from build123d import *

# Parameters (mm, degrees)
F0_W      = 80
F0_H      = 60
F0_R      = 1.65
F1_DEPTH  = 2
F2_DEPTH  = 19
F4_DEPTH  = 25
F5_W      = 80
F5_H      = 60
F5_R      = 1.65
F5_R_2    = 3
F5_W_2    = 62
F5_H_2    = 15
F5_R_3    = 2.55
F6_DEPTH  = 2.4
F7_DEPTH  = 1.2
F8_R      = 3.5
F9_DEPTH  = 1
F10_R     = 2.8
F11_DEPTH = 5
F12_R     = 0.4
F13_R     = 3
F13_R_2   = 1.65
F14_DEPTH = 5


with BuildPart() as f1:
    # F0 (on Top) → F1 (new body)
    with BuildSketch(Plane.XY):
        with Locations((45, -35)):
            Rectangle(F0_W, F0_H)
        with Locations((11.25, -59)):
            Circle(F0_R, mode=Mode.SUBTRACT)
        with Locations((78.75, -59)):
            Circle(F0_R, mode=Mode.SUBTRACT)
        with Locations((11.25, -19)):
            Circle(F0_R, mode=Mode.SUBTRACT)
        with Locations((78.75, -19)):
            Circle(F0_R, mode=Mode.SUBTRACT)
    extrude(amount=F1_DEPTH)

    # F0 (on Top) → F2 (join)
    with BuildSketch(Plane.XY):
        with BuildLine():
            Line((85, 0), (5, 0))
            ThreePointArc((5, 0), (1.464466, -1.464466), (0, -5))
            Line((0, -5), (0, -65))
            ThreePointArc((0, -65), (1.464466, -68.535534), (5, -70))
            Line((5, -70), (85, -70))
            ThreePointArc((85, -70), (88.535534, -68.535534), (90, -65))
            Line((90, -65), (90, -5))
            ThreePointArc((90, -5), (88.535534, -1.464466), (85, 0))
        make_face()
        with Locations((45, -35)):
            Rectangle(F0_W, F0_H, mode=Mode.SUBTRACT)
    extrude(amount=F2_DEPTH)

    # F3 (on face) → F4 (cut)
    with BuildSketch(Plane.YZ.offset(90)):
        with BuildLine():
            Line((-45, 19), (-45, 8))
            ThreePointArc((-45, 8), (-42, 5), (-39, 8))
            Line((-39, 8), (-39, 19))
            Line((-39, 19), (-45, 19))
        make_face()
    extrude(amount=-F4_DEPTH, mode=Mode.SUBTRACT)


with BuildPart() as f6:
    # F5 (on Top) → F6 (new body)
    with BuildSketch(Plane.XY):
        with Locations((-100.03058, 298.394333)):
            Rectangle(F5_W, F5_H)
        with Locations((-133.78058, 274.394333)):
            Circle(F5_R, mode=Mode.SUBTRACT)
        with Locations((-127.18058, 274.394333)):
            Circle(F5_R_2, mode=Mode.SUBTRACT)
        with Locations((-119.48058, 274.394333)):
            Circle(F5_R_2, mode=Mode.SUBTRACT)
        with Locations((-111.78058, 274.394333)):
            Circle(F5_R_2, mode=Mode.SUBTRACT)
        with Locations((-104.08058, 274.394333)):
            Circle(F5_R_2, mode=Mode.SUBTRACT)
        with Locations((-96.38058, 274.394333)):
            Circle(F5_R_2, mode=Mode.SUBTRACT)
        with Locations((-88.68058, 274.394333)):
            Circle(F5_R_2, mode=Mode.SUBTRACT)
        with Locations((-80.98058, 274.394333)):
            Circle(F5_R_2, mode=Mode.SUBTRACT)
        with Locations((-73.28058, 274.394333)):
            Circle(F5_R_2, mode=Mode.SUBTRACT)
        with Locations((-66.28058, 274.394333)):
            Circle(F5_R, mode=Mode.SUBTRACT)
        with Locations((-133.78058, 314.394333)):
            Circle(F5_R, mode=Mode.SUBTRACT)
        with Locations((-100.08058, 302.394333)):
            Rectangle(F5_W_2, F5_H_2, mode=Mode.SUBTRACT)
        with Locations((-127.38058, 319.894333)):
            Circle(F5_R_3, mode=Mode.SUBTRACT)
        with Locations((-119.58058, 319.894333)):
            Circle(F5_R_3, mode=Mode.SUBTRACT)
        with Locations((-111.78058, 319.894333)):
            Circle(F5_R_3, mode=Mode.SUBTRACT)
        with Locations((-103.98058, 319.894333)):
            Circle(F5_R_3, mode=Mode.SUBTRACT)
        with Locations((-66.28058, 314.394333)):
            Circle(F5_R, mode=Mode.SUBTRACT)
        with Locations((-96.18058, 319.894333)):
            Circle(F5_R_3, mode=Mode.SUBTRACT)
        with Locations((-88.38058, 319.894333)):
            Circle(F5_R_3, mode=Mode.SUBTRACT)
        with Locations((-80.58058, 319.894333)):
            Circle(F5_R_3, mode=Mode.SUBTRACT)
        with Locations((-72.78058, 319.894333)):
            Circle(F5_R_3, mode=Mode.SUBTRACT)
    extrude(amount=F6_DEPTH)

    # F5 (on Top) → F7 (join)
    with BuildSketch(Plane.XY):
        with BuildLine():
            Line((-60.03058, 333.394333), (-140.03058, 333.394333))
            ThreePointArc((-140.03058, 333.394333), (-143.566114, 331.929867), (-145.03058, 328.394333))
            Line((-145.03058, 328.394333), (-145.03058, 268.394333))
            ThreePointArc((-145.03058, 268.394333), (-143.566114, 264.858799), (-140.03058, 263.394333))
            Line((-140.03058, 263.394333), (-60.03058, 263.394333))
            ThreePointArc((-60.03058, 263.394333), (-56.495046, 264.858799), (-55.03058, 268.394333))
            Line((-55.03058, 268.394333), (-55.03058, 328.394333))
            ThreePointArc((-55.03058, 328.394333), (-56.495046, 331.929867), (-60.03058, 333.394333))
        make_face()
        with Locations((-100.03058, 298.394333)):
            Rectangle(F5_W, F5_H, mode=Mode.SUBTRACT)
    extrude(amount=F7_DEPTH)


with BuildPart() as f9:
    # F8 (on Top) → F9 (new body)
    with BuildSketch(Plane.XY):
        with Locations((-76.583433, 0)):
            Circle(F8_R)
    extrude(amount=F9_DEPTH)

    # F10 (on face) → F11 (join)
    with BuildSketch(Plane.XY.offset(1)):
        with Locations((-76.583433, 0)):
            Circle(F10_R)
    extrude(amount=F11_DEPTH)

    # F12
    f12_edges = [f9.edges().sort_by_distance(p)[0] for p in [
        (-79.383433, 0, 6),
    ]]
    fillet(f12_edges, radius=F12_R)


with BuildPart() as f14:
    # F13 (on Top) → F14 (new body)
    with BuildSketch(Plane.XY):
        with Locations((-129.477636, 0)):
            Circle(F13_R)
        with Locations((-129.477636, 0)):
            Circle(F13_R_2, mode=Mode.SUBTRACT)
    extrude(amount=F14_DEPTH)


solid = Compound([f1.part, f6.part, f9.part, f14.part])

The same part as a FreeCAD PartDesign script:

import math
import FreeCAD as App
import Part
import Sketcher
from FreeCAD import Vector
Q = App.Units.Quantity


def edges_at(feature, points):
    """Names of the edges that pass closest to the given points."""
    edges = feature.Shape.Edges
    near = lambda p: min(range(len(edges)), key=lambda i: edges[i].distToShape(Part.Vertex(*p))[0])
    return sorted({f"Edge{near(p) + 1}" for p in points})


def add_polygon(sketch, points):
    """Adds a closed chain of lines whose ends are joined by coincident constraints."""
    first, n = sketch.GeometryCount, len(points)
    for a, b in zip(points, points[1:] + points[:1]):
        sketch.addGeometry(Part.LineSegment(App.Vector(*a, 0), App.Vector(*b, 0)), False)
    for i in range(n):
        sketch.addConstraint(Sketcher.Constraint("Coincident", first + i, 2, first + (i + 1) % n, 1))

doc = App.newDocument("Part")
body = doc.addObject("PartDesign::Body", "Body")

# Sketch on XY plane
sketch1 = body.newObject("Sketcher::SketchObject", "Sketch")
sketch1.AttachmentSupport = (doc.getObject("XY_Plane"), [""])
sketch1.MapMode = "FlatFace"
add_polygon(sketch1, [(5, -5), (5, -65), (85, -65), (85, -5)])  # lines 0-3
sketch1.addGeometry(Part.Circle(Vector(11.25, -59, 0), Vector(0, 0, 1), 1.65), False)  # 4
sketch1.addGeometry(Part.Circle(Vector(78.75, -59, 0), Vector(0, 0, 1), 1.65), False)  # 5
sketch1.addGeometry(Part.Circle(Vector(11.25, -19, 0), Vector(0, 0, 1), 1.65), False)  # 6
sketch1.addGeometry(Part.Circle(Vector(78.75, -19, 0), Vector(0, 0, 1), 1.65), False)  # 7
sketch1.addConstraint(Sketcher.Constraint("Vertical", 0))
sketch1.addConstraint(Sketcher.Constraint("Horizontal", 1))
sketch1.addConstraint(Sketcher.Constraint("Vertical", 2))
sketch1.addConstraint(Sketcher.Constraint("Horizontal", 3))
sketch1.addConstraint(Sketcher.Constraint("Equal", 4, 5))
sketch1.addConstraint(Sketcher.Constraint("Equal", 5, 6))
sketch1.addConstraint(Sketcher.Constraint("Equal", 6, 7))
sketch1.addConstraint(Sketcher.Constraint("Horizontal", 4, 3, 5, 3))
sketch1.addConstraint(Sketcher.Constraint("Horizontal", 6, 3, 7, 3))
sketch1.addConstraint(Sketcher.Constraint("Vertical", 4, 3, 6, 3))
sketch1.addConstraint(Sketcher.Constraint("Vertical", 5, 3, 7, 3))
sketch1.addConstraint(Sketcher.Constraint("Diameter", 4, Q("3.3 mm")))
sketch1.addConstraint(Sketcher.Constraint("DistanceX", 1, 1, 1, 2, Q("80 mm")))
sketch1.addConstraint(Sketcher.Constraint("DistanceY", 0, 2, 0, 1, Q("60 mm")))
sketch1.addConstraint(Sketcher.Constraint("DistanceY", 4, 3, -1, 1, Q("59 mm")))
sketch1.addConstraint(Sketcher.Constraint("DistanceY", 6, 3, -1, 1, Q("19 mm")))
sketch1.addConstraint(Sketcher.Constraint("DistanceX", -1, 1, 0, 2, Q("5 mm")))
sketch1.addConstraint(Sketcher.Constraint("DistanceY", 0, 2, -1, 1, Q("65 mm")))
sketch1.addConstraint(Sketcher.Constraint("DistanceX", 4, 3, 5, 3, Q("67.5 mm")))
sketch1.addConstraint(Sketcher.Constraint("DistanceX", -1, 1, 4, 3, Q("11.25 mm")))
pad1 = body.newObject("PartDesign::Pad", "Pad")
pad1.Profile = sketch1
pad1.Length = 2

# Sketch on XY plane
sketch2 = body.newObject("Sketcher::SketchObject", "Sketch001")
sketch2.AttachmentSupport = (doc.getObject("XY_Plane"), [""])
sketch2.MapMode = "FlatFace"
sketch2.addGeometry(Part.LineSegment(Vector(85, 0, 0), Vector(5, 0, 0)), False)  # 0
sketch2.addGeometry(Part.ArcOfCircle(Part.Circle(Vector(5, -5, 0), Vector(0, 0, 1), 5), math.radians(89.999996), math.radians(180.000004)), False)  # 1
sketch2.addGeometry(Part.LineSegment(Vector(0, -5, 0), Vector(0, -65, 0)), False)  # 2
sketch2.addGeometry(Part.ArcOfCircle(Part.Circle(Vector(5, -65, 0), Vector(0, 0, 1), 5), math.radians(179.999996), math.radians(270.000004)), False)  # 3
sketch2.addGeometry(Part.LineSegment(Vector(5, -70, 0), Vector(85, -70, 0)), False)  # 4
sketch2.addGeometry(Part.ArcOfCircle(Part.Circle(Vector(85, -65, 0), Vector(0, 0, 1), 5), math.radians(-90.000004), math.radians(0.000004)), False)  # 5
sketch2.addGeometry(Part.LineSegment(Vector(90, -65, 0), Vector(90, -5, 0)), False)  # 6
sketch2.addGeometry(Part.ArcOfCircle(Part.Circle(Vector(85, -5, 0), Vector(0, 0, 1), 5), math.radians(-0.000004), math.radians(90.000004)), False)  # 7
add_polygon(sketch2, [(85, -65), (5, -65), (5, -5), (85, -5)])  # lines 8-11
sketch2.addConstraint(Sketcher.Constraint("Tangent", 0, 2, 1, 1))
sketch2.addConstraint(Sketcher.Constraint("Tangent", 1, 2, 2, 1))
sketch2.addConstraint(Sketcher.Constraint("Tangent", 2, 2, 3, 1))
sketch2.addConstraint(Sketcher.Constraint("Tangent", 3, 2, 4, 1))
sketch2.addConstraint(Sketcher.Constraint("Tangent", 4, 2, 5, 1))
sketch2.addConstraint(Sketcher.Constraint("Tangent", 5, 2, 6, 1))
sketch2.addConstraint(Sketcher.Constraint("Tangent", 6, 2, 7, 1))
sketch2.addConstraint(Sketcher.Constraint("Tangent", 7, 2, 0, 1))
sketch2.addConstraint(Sketcher.Constraint("Horizontal", 0))
sketch2.addConstraint(Sketcher.Constraint("Vertical", 2))
sketch2.addConstraint(Sketcher.Constraint("Horizontal", 4))
sketch2.addConstraint(Sketcher.Constraint("Vertical", 6))
sketch2.addConstraint(Sketcher.Constraint("Horizontal", 8))
sketch2.addConstraint(Sketcher.Constraint("Vertical", 9))
sketch2.addConstraint(Sketcher.Constraint("Horizontal", 10))
sketch2.addConstraint(Sketcher.Constraint("Vertical", 11))
sketch2.addConstraint(Sketcher.Constraint("Coincident", 8, 2, 3, 3))
sketch2.addConstraint(Sketcher.Constraint("Coincident", 9, 2, 1, 3))
sketch2.addConstraint(Sketcher.Constraint("Coincident", 10, 2, 7, 3))
sketch2.addConstraint(Sketcher.Constraint("Equal", 3, 5))
sketch2.addConstraint(Sketcher.Constraint("PointOnObject", 0, 2, -1))
sketch2.addConstraint(Sketcher.Constraint("PointOnObject", 1, 2, -2))
sketch2.addConstraint(Sketcher.Constraint("Radius", 1, Q("5 mm")))
sketch2.addConstraint(Sketcher.Constraint("DistanceX", 0, 2, 0, 1, Q("80 mm")))
sketch2.addConstraint(Sketcher.Constraint("DistanceY", 2, 2, 2, 1, Q("60 mm")))
pad2 = body.newObject("PartDesign::Pad", "Pad001")
pad2.Profile = sketch2
pad2.Length = 19

# Sketch on YZ plane
sketch3 = body.newObject("Sketcher::SketchObject", "Sketch002")
sketch3.AttachmentSupport = (doc.getObject("YZ_Plane"), [""])
sketch3.MapMode = "FlatFace"
sketch3.AttachmentOffset = App.Placement(Vector(0, 0, 90), App.Rotation())
sketch3.addGeometry(Part.LineSegment(Vector(-45, 19, 0), Vector(-45, 8, 0)), False)
sketch3.addGeometry(Part.ArcOfCircle(Part.Circle(Vector(-42, 8, 0), Vector(0, 0, 1), 3), math.radians(180), math.radians(360)), False)
sketch3.addGeometry(Part.LineSegment(Vector(-39, 8, 0), Vector(-39, 19, 0)), False)
sketch3.addGeometry(Part.LineSegment(Vector(-39, 19, 0), Vector(-45, 19, 0)), False)
sketch3.addConstraint(Sketcher.Constraint("Tangent", 0, 2, 1, 1))
sketch3.addConstraint(Sketcher.Constraint("Tangent", 1, 2, 2, 1))
sketch3.addConstraint(Sketcher.Constraint("Coincident", 2, 2, 3, 1))
sketch3.addConstraint(Sketcher.Constraint("Coincident", 3, 2, 0, 1))
sketch3.addConstraint(Sketcher.Constraint("Vertical", 0))
sketch3.addConstraint(Sketcher.Constraint("Vertical", 2))
sketch3.addConstraint(Sketcher.Constraint("Horizontal", 3))
sketch3.addConstraint(Sketcher.Constraint("Radius", 1, Q("3 mm")))
sketch3.addConstraint(Sketcher.Constraint("DistanceY", 0, 2, 0, 1, Q("11 mm")))
sketch3.addConstraint(Sketcher.Constraint("DistanceX", 1, 3, -1, 1, Q("42 mm")))
sketch3.addConstraint(Sketcher.Constraint("DistanceY", -1, 1, 1, 3, Q("8 mm")))
pocket1 = body.newObject("PartDesign::Pocket", "Pocket")
pocket1.Profile = sketch3
pocket1.Length = 25
body2 = doc.addObject("PartDesign::Body", "Body001")

# Sketch on XY plane
sketch4 = body2.newObject("Sketcher::SketchObject", "Sketch003")
sketch4.AttachmentSupport = (doc.getObject("XY_Plane001"), [""])
sketch4.MapMode = "FlatFace"
add_polygon(sketch4, [(-140.03058, 328.394333), (-140.03058, 268.394333), (-60.03058, 268.394333), (-60.03058, 328.394333)])  # lines 0-3
sketch4.addGeometry(Part.Circle(Vector(-133.78058, 274.394333, 0), Vector(0, 0, 1), 1.65), False)  # 4
sketch4.addGeometry(Part.Circle(Vector(-127.18058, 274.394333, 0), Vector(0, 0, 1), 3), False)  # 5
sketch4.addGeometry(Part.Circle(Vector(-119.48058, 274.394333, 0), Vector(0, 0, 1), 3), False)  # 6
sketch4.addGeometry(Part.Circle(Vector(-111.78058, 274.394333, 0), Vector(0, 0, 1), 3), False)  # 7
sketch4.addGeometry(Part.Circle(Vector(-104.08058, 274.394333, 0), Vector(0, 0, 1), 3), False)  # 8
sketch4.addGeometry(Part.Circle(Vector(-96.38058, 274.394333, 0), Vector(0, 0, 1), 3), False)  # 9
sketch4.addGeometry(Part.Circle(Vector(-88.68058, 274.394333, 0), Vector(0, 0, 1), 3), False)  # 10
sketch4.addGeometry(Part.Circle(Vector(-80.98058, 274.394333, 0), Vector(0, 0, 1), 3), False)  # 11
sketch4.addGeometry(Part.Circle(Vector(-73.28058, 274.394333, 0), Vector(0, 0, 1), 3), False)  # 12
sketch4.addGeometry(Part.Circle(Vector(-66.28058, 274.394333, 0), Vector(0, 0, 1), 1.65), False)  # 13
add_polygon(sketch4, [(-69.08058, 294.894333), (-131.08058, 294.894333), (-131.08058, 309.894333), (-69.08058, 309.894333)])  # lines 14-17
sketch4.addGeometry(Part.Circle(Vector(-133.78058, 314.394333, 0), Vector(0, 0, 1), 1.65), False)  # 18
sketch4.addGeometry(Part.Circle(Vector(-127.38058, 319.894333, 0), Vector(0, 0, 1), 2.55), False)  # 19
sketch4.addGeometry(Part.Circle(Vector(-119.58058, 319.894333, 0), Vector(0, 0, 1), 2.55), False)  # 20
sketch4.addGeometry(Part.Circle(Vector(-111.78058, 319.894333, 0), Vector(0, 0, 1), 2.55), False)  # 21
sketch4.addGeometry(Part.Circle(Vector(-103.98058, 319.894333, 0), Vector(0, 0, 1), 2.55), False)  # 22
sketch4.addGeometry(Part.Circle(Vector(-96.18058, 319.894333, 0), Vector(0, 0, 1), 2.55), False)  # 23
sketch4.addGeometry(Part.Circle(Vector(-88.38058, 319.894333, 0), Vector(0, 0, 1), 2.55), False)  # 24
sketch4.addGeometry(Part.Circle(Vector(-66.28058, 314.394333, 0), Vector(0, 0, 1), 1.65), False)  # 25
sketch4.addGeometry(Part.Circle(Vector(-80.58058, 319.894333, 0), Vector(0, 0, 1), 2.55), False)  # 26
sketch4.addGeometry(Part.Circle(Vector(-72.78058, 319.894333, 0), Vector(0, 0, 1), 2.55), False)  # 27
sketch4.addConstraint(Sketcher.Constraint("Vertical", 0))
sketch4.addConstraint(Sketcher.Constraint("Horizontal", 1))
sketch4.addConstraint(Sketcher.Constraint("Vertical", 2))
sketch4.addConstraint(Sketcher.Constraint("Horizontal", 3))
sketch4.addConstraint(Sketcher.Constraint("Horizontal", 14))
sketch4.addConstraint(Sketcher.Constraint("Vertical", 15))
sketch4.addConstraint(Sketcher.Constraint("Horizontal", 16))
sketch4.addConstraint(Sketcher.Constraint("Vertical", 17))
sketch4.addConstraint(Sketcher.Constraint("Equal", 5, 6))
sketch4.addConstraint(Sketcher.Constraint("Equal", 6, 7))
sketch4.addConstraint(Sketcher.Constraint("Equal", 7, 8))
sketch4.addConstraint(Sketcher.Constraint("Equal", 8, 9))
sketch4.addConstraint(Sketcher.Constraint("Equal", 9, 10))
sketch4.addConstraint(Sketcher.Constraint("Equal", 10, 11))
sketch4.addConstraint(Sketcher.Constraint("Equal", 11, 12))
sketch4.addConstraint(Sketcher.Constraint("Equal", 4, 13))
sketch4.addConstraint(Sketcher.Constraint("Equal", 13, 18))
sketch4.addConstraint(Sketcher.Constraint("Equal", 19, 20))
sketch4.addConstraint(Sketcher.Constraint("Equal", 20, 21))
sketch4.addConstraint(Sketcher.Constraint("Equal", 21, 22))
sketch4.addConstraint(Sketcher.Constraint("Equal", 22, 23))
sketch4.addConstraint(Sketcher.Constraint("Equal", 23, 24))
sketch4.addConstraint(Sketcher.Constraint("Equal", 18, 25))
sketch4.addConstraint(Sketcher.Constraint("Equal", 24, 26))
sketch4.addConstraint(Sketcher.Constraint("Equal", 26, 27))
sketch4.addConstraint(Sketcher.Constraint("Horizontal", 4, 3, 5, 3))
sketch4.addConstraint(Sketcher.Constraint("Horizontal", 5, 3, 6, 3))
sketch4.addConstraint(Sketcher.Constraint("Horizontal", 6, 3, 7, 3))
sketch4.addConstraint(Sketcher.Constraint("Horizontal", 7, 3, 8, 3))
sketch4.addConstraint(Sketcher.Constraint("Horizontal", 8, 3, 9, 3))
sketch4.addConstraint(Sketcher.Constraint("Horizontal", 9, 3, 10, 3))
sketch4.addConstraint(Sketcher.Constraint("Horizontal", 10, 3, 11, 3))
sketch4.addConstraint(Sketcher.Constraint("Horizontal", 11, 3, 12, 3))
sketch4.addConstraint(Sketcher.Constraint("Horizontal", 12, 3, 13, 3))
sketch4.addConstraint(Sketcher.Constraint("Horizontal", 19, 3, 20, 3))
sketch4.addConstraint(Sketcher.Constraint("Horizontal", 20, 3, 21, 3))
sketch4.addConstraint(Sketcher.Constraint("Horizontal", 21, 3, 22, 3))
sketch4.addConstraint(Sketcher.Constraint("Horizontal", 22, 3, 23, 3))
sketch4.addConstraint(Sketcher.Constraint("Horizontal", 23, 3, 24, 3))
sketch4.addConstraint(Sketcher.Constraint("Horizontal", 18, 3, 25, 3))
sketch4.addConstraint(Sketcher.Constraint("Horizontal", 24, 3, 26, 3))
sketch4.addConstraint(Sketcher.Constraint("Horizontal", 26, 3, 27, 3))
sketch4.addConstraint(Sketcher.Constraint("Vertical", 4, 3, 18, 3))
sketch4.addConstraint(Sketcher.Constraint("Vertical", 7, 3, 21, 3))
sketch4.addConstraint(Sketcher.Constraint("Vertical", 13, 3, 25, 3))
sketch4.addConstraint(Sketcher.Constraint("Diameter", 5, Q("6 mm")))
sketch4.addConstraint(Sketcher.Constraint("Diameter", 4, Q("3.3 mm")))
sketch4.addConstraint(Sketcher.Constraint("Diameter", 19, Q("5.1 mm")))
sketch4.addConstraint(Sketcher.Constraint("DistanceX", 1, 1, 1, 2, Q("80 mm")))
sketch4.addConstraint(Sketcher.Constraint("DistanceX", 14, 2, 14, 1, Q("62 mm")))
sketch4.addConstraint(Sketcher.Constraint("DistanceY", 0, 2, 0, 1, Q("60 mm")))
sketch4.addConstraint(Sketcher.Constraint("DistanceY", 15, 1, 15, 2, Q("15 mm")))
sketch4.addConstraint(Sketcher.Constraint("DistanceX", 4, 3, 7, 3, Q("22 mm")))
sketch4.addConstraint(Sketcher.Constraint("DistanceX", 12, 3, 13, 3, Q("7 mm")))
sketch4.addConstraint(Sketcher.Constraint("DistanceY", 4, 3, 18, 3, Q("40 mm")))
sketch4.addConstraint(Sketcher.Constraint("DistanceX", 19, 3, 24, 3, Q("39 mm")))
sketch4.addConstraint(Sketcher.Constraint("DistanceY", 0, 2, 4, 3, Q("6 mm")))
sketch4.addConstraint(Sketcher.Constraint("DistanceY", 14, 2, 19, 3, Q("25 mm")))
sketch4.addConstraint(Sketcher.Constraint("DistanceX", 4, 3, 5, 3, Q("6.6 mm")))
sketch4.addConstraint(Sketcher.Constraint("DistanceX", 5, 3, 6, 3, Q("7.7 mm")))
sketch4.addConstraint(Sketcher.Constraint("DistanceX", 7, 3, 8, 3, Q("7.7 mm")))
sketch4.addConstraint(Sketcher.Constraint("DistanceX", 8, 3, 9, 3, Q("7.7 mm")))
sketch4.addConstraint(Sketcher.Constraint("DistanceX", 9, 3, 10, 3, Q("7.7 mm")))
sketch4.addConstraint(Sketcher.Constraint("DistanceX", 10, 3, 11, 3, Q("7.7 mm")))
sketch4.addConstraint(Sketcher.Constraint("DistanceX", 11, 3, 12, 3, Q("7.7 mm")))
sketch4.addConstraint(Sketcher.Constraint("DistanceX", 18, 3, 19, 3, Q("6.4 mm")))
sketch4.addConstraint(Sketcher.Constraint("DistanceY", 18, 3, 19, 3, Q("5.5 mm")))
sketch4.addConstraint(Sketcher.Constraint("DistanceX", 19, 3, 20, 3, Q("7.8 mm")))
sketch4.addConstraint(Sketcher.Constraint("DistanceX", 21, 3, 22, 3, Q("7.8 mm")))
sketch4.addConstraint(Sketcher.Constraint("DistanceX", 22, 3, 23, 3, Q("7.8 mm")))
sketch4.addConstraint(Sketcher.Constraint("DistanceX", 24, 3, 26, 3, Q("7.8 mm")))
sketch4.addConstraint(Sketcher.Constraint("DistanceX", 26, 3, 27, 3, Q("7.8 mm")))
sketch4.addConstraint(Sketcher.Constraint("DistanceX", 18, 3, 14, 2, Q("2.7 mm")))
sketch4.addConstraint(Sketcher.Constraint("DistanceX", 0, 2, 4, 3, Q("6.25 mm")))
sketch4.addConstraint(Sketcher.Constraint("DistanceX", 4, 3, -1, 1, Q("133.78058 mm")))
sketch4.addConstraint(Sketcher.Constraint("DistanceY", -1, 1, 4, 3, Q("274.394333 mm")))
pad3 = body2.newObject("PartDesign::Pad", "Pad002")
pad3.Profile = sketch4
pad3.Length = 2.4

# Sketch on XY plane
sketch5 = body2.newObject("Sketcher::SketchObject", "Sketch004")
sketch5.AttachmentSupport = (doc.getObject("XY_Plane001"), [""])
sketch5.MapMode = "FlatFace"
sketch5.addGeometry(Part.LineSegment(Vector(-60.03058, 333.394333, 0), Vector(-140.03058, 333.394333, 0)), False)  # 0
sketch5.addGeometry(Part.ArcOfCircle(Part.Circle(Vector(-140.03058, 328.394333, 0), Vector(0, 0, 1), 5), math.radians(89.999996), math.radians(180.000004)), False)  # 1
sketch5.addGeometry(Part.LineSegment(Vector(-145.03058, 328.394333, 0), Vector(-145.03058, 268.394333, 0)), False)  # 2
sketch5.addGeometry(Part.ArcOfCircle(Part.Circle(Vector(-140.03058, 268.394333, 0), Vector(0, 0, 1), 5), math.radians(179.999996), math.radians(270.000004)), False)  # 3
sketch5.addGeometry(Part.LineSegment(Vector(-140.03058, 263.394333, 0), Vector(-60.03058, 263.394333, 0)), False)  # 4
sketch5.addGeometry(Part.ArcOfCircle(Part.Circle(Vector(-60.03058, 268.394333, 0), Vector(0, 0, 1), 5), math.radians(-90.000004), math.radians(0.000004)), False)  # 5
sketch5.addGeometry(Part.LineSegment(Vector(-55.03058, 268.394333, 0), Vector(-55.03058, 328.394333, 0)), False)  # 6
sketch5.addGeometry(Part.ArcOfCircle(Part.Circle(Vector(-60.03058, 328.394333, 0), Vector(0, 0, 1), 5), math.radians(-0.000004), math.radians(90.000004)), False)  # 7
add_polygon(sketch5, [(-60.03058, 268.394333), (-140.03058, 268.394333), (-140.03058, 328.394333), (-60.03058, 328.394333)])  # lines 8-11
sketch5.addConstraint(Sketcher.Constraint("Tangent", 0, 2, 1, 1))
sketch5.addConstraint(Sketcher.Constraint("Tangent", 1, 2, 2, 1))
sketch5.addConstraint(Sketcher.Constraint("Tangent", 2, 2, 3, 1))
sketch5.addConstraint(Sketcher.Constraint("Tangent", 3, 2, 4, 1))
sketch5.addConstraint(Sketcher.Constraint("Tangent", 4, 2, 5, 1))
sketch5.addConstraint(Sketcher.Constraint("Tangent", 5, 2, 6, 1))
sketch5.addConstraint(Sketcher.Constraint("Tangent", 6, 2, 7, 1))
sketch5.addConstraint(Sketcher.Constraint("Tangent", 7, 2, 0, 1))
sketch5.addConstraint(Sketcher.Constraint("Horizontal", 0))
sketch5.addConstraint(Sketcher.Constraint("Vertical", 2))
sketch5.addConstraint(Sketcher.Constraint("Horizontal", 4))
sketch5.addConstraint(Sketcher.Constraint("Vertical", 6))
sketch5.addConstraint(Sketcher.Constraint("Horizontal", 8))
sketch5.addConstraint(Sketcher.Constraint("Vertical", 9))
sketch5.addConstraint(Sketcher.Constraint("Horizontal", 10))
sketch5.addConstraint(Sketcher.Constraint("Vertical", 11))
sketch5.addConstraint(Sketcher.Constraint("Coincident", 8, 2, 3, 3))
sketch5.addConstraint(Sketcher.Constraint("Coincident", 9, 2, 1, 3))
sketch5.addConstraint(Sketcher.Constraint("Coincident", 10, 2, 7, 3))
sketch5.addConstraint(Sketcher.Constraint("Equal", 3, 5))
sketch5.addConstraint(Sketcher.Constraint("Radius", 1, Q("5 mm")))
sketch5.addConstraint(Sketcher.Constraint("DistanceX", 0, 2, 0, 1, Q("80 mm")))
sketch5.addConstraint(Sketcher.Constraint("DistanceY", 2, 2, 2, 1, Q("60 mm")))
sketch5.addConstraint(Sketcher.Constraint("DistanceX", 1, 3, -1, 1, Q("140.03058 mm")))
sketch5.addConstraint(Sketcher.Constraint("DistanceY", -1, 1, 1, 3, Q("328.394333 mm")))
pad4 = body2.newObject("PartDesign::Pad", "Pad003")
pad4.Profile = sketch5
pad4.Length = 1.2
body3 = doc.addObject("PartDesign::Body", "Body002")

# Sketch on XY plane
sketch6 = body3.newObject("Sketcher::SketchObject", "Sketch005")
sketch6.AttachmentSupport = (doc.getObject("XY_Plane002"), [""])
sketch6.MapMode = "FlatFace"
sketch6.addGeometry(Part.Circle(Vector(-76.583433, 0, 0), Vector(0, 0, 1), 3.5), False)
sketch6.addConstraint(Sketcher.Constraint("PointOnObject", 0, 3, -1))
sketch6.addConstraint(Sketcher.Constraint("Diameter", 0, Q("7 mm")))
sketch6.addConstraint(Sketcher.Constraint("DistanceX", 0, 3, -1, 1, Q("76.583433 mm")))
pad5 = body3.newObject("PartDesign::Pad", "Pad004")
pad5.Profile = sketch6
pad5.Length = 1

# Sketch on XY plane
sketch7 = body3.newObject("Sketcher::SketchObject", "Sketch006")
sketch7.AttachmentSupport = (doc.getObject("XY_Plane002"), [""])
sketch7.MapMode = "FlatFace"
sketch7.AttachmentOffset = App.Placement(Vector(0, 0, 1), App.Rotation())
sketch7.addGeometry(Part.Circle(Vector(-76.583433, 0, 0), Vector(0, 0, 1), 2.8), False)
sketch7.addConstraint(Sketcher.Constraint("PointOnObject", 0, 3, -1))
sketch7.addConstraint(Sketcher.Constraint("Diameter", 0, Q("5.6 mm")))
sketch7.addConstraint(Sketcher.Constraint("DistanceX", 0, 3, -1, 1, Q("76.583433 mm")))
pad6 = body3.newObject("PartDesign::Pad", "Pad005")
pad6.Profile = sketch7
pad6.Length = 5
doc.recompute()

fillet = body3.newObject("PartDesign::Fillet", "Fillet")
fillet.Base = (pad6, edges_at(pad6, [(-79.383, 0, 6)]))
fillet.Radius = 0.4
body4 = doc.addObject("PartDesign::Body", "Body003")

# Sketch on XY plane
sketch8 = body4.newObject("Sketcher::SketchObject", "Sketch007")
sketch8.AttachmentSupport = (doc.getObject("XY_Plane003"), [""])
sketch8.MapMode = "FlatFace"
sketch8.addGeometry(Part.Circle(Vector(-129.477636, 0, 0), Vector(0, 0, 1), 3), False)
sketch8.addGeometry(Part.Circle(Vector(-129.477636, 0, 0), Vector(0, 0, 1), 1.65), False)
sketch8.addConstraint(Sketcher.Constraint("Coincident", 1, 3, 0, 3))
sketch8.addConstraint(Sketcher.Constraint("PointOnObject", 0, 3, -1))
sketch8.addConstraint(Sketcher.Constraint("Diameter", 0, Q("6 mm")))
sketch8.addConstraint(Sketcher.Constraint("Diameter", 1, Q("3.3 mm")))
sketch8.addConstraint(Sketcher.Constraint("DistanceX", 0, 3, -1, 1, Q("129.477636 mm")))
pad7 = body4.newObject("PartDesign::Pad", "Pad006")
pad7.Profile = sketch8
pad7.Length = 5

doc.recompute()
